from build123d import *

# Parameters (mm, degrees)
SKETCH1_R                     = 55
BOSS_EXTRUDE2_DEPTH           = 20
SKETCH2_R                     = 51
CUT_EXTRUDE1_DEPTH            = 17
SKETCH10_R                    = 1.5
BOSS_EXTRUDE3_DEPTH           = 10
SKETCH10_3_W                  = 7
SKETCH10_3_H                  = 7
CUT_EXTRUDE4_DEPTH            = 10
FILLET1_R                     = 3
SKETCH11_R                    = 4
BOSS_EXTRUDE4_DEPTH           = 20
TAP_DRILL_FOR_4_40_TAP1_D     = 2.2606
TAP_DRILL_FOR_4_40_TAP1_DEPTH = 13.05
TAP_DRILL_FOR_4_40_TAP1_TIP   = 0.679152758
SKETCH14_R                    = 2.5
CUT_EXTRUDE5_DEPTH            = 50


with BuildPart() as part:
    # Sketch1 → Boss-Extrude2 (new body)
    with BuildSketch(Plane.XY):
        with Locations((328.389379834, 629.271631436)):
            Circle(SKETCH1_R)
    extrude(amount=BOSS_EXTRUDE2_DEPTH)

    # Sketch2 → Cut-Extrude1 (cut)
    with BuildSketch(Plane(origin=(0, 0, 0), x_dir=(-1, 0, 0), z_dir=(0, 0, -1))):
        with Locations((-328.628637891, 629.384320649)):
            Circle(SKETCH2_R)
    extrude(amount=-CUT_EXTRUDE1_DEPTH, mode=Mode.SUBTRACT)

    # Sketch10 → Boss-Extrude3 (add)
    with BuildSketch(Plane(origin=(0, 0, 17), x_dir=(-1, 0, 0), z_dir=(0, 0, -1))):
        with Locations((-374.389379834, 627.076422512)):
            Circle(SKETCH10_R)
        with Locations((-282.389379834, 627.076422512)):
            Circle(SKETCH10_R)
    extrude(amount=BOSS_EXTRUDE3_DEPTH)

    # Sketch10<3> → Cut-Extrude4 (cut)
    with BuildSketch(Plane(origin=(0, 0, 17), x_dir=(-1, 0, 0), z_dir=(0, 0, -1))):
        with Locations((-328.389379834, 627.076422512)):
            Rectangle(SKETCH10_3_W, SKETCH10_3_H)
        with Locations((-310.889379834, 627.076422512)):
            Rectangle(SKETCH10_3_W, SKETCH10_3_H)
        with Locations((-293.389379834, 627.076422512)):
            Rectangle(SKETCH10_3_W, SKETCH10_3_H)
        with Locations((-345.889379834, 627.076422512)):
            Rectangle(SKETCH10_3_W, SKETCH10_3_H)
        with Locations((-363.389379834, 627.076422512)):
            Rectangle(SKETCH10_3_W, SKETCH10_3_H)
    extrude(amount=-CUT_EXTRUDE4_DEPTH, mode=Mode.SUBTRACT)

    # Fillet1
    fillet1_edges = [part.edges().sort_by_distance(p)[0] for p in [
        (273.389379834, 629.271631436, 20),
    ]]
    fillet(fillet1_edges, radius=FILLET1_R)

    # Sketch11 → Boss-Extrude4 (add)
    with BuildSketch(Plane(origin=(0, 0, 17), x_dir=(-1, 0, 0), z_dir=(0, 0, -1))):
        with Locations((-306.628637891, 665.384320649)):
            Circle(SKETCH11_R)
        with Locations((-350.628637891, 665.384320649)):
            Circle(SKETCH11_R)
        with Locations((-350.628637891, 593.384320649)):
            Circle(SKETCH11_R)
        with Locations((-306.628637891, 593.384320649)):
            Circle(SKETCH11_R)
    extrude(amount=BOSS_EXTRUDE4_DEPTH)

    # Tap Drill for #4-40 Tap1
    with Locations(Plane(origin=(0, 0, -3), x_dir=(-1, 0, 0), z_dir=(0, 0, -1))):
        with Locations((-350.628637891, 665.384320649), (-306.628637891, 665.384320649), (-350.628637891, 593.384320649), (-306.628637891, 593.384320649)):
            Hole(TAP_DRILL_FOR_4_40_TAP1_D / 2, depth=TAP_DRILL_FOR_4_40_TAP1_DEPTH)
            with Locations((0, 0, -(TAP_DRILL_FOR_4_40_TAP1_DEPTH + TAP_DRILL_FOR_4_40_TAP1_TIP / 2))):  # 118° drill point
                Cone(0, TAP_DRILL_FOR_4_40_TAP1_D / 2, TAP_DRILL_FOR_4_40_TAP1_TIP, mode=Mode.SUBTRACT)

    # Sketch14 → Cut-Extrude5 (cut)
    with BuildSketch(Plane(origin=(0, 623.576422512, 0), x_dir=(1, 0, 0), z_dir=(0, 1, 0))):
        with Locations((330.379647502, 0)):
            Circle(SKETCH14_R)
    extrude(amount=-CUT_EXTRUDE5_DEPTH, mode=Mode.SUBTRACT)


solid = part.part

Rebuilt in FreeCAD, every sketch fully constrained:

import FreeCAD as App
import Part
import Sketcher
from FreeCAD import Vector


def edges_at(feature, points):
    """Names of the edges that pass closest to the given points."""
    edges = feature.Shape.Edges
    near = lambda p: min(range(len(edges)), key=lambda i: edges[i].distToShape(Part.Vertex(*p))[0])
    return sorted({f"Edge{near(p) + 1}" for p in points})


def add_polygon(sketch, points):
    """Adds a closed chain of lines whose ends are joined by coincident constraints."""
    first, n = sketch.GeometryCount, len(points)
    for a, b in zip(points, points[1:] + points[:1]):
        sketch.addGeometry(Part.LineSegment(App.Vector(*a, 0), App.Vector(*b, 0)), False)
    for i in range(n):
        sketch.addConstraint(Sketcher.Constraint("Coincident", first + i, 2, first + (i + 1) % n, 1))

doc = App.newDocument("Part")
params = doc.addObject("Spreadsheet::Sheet", "Params")
for row, (alias, value) in enumerate([
    ("sketch1_diameter", "110 mm"),
    ("pad1_length", "20 mm"),
    ("sketch2_diameter", "102 mm"),
    ("pocket1_length", "17 mm"),
    ("sketch3_diameter", "3 mm"),
    ("pad2_length", "10 mm"),
    ("sketch4_width", "7 mm"),
    ("pocket2_length", "10 mm"),
    ("fillet_radius", "3 mm"),
    ("sketch5_diameter", "8 mm"),
    ("pad3_length", "20 mm"),
    ("hole_diameter", "2.2606 mm"),
    ("hole_depth", "13.05 mm"),
    ("sketch7_diameter", "5 mm"),
    ("pocket3_length", "50 mm"),
], start=1):
    params.set(f"A{row}", alias)
    params.set(f"B{row}", "=" + value)
    params.setAlias(f"B{row}", alias)

body = doc.addObject("PartDesign::Body", "Body")

# Sketch on XY plane
sketch1 = body.newObject("Sketcher::SketchObject", "Sketch")
sketch1.AttachmentSupport = (doc.getObject("XY_Plane"), [""])
sketch1.MapMode = "FlatFace"
sketch1.addGeometry(Part.Circle(Vector(328, 629, 0), Vector(0, 0, 1), 55), False)
sketch1.addConstraint([
    Sketcher.Constraint("Diameter", 0, 110.0),
    Sketcher.Constraint("DistanceX", -1, 1, 0, 3, 328.38938),
    Sketcher.Constraint("DistanceY", -1, 1, 0, 3, 629.271631),
])
sketch1.setExpression("Constraints[0]", "Params.sketch1_diameter")
pad1 = body.newObject("PartDesign::Pad", "Pad")
pad1.Profile = sketch1
pad1.setExpression("Length", "Params.pad1_length")

# Sketch on XY plane
sketch2 = body.newObject("Sketcher::SketchObject", "Sketch001")
sketch2.AttachmentSupport = (doc.getObject("XY_Plane"), [""])
sketch2.MapMode = "FlatFace"
sketch2.addGeometry(Part.Circle(Vector(329, 629, 0), Vector(0, 0, 1), 51), False)
sketch2.addConstraint([
    Sketcher.Constraint("Diameter", 0, 102.0),
    Sketcher.Constraint("DistanceY", -1, 1, 0, 3, 629.384321),
    Sketcher.Constraint("DistanceX", -1, 1, 0, 3, 328.628638),
])
sketch2.setExpression("Constraints[0]", "Params.sketch2_diameter")
pocket1 = body.newObject("PartDesign::Pocket", "Pocket")
pocket1.Profile = sketch2
pocket1.setExpression("Length", "Params.pocket1_length")
pocket1.Reversed = True

# Sketch on XY plane
sketch3 = body.newObject("Sketcher::SketchObject", "Sketch002")
sketch3.AttachmentSupport = (doc.getObject("XY_Plane"), [""])
sketch3.MapMode = "FlatFace"
sketch3.AttachmentOffset = App.Placement(Vector(0, 0, 17), App.Rotation())
sketch3.addGeometry([
    Part.Circle(Vector(374.4, 627.1, 0), Vector(0, 0, 1), 1.5),
    Part.Circle(Vector(282.4, 627.1, 0), Vector(0, 0, 1), 1.5),
], False)
sketch3.addConstraint([
    Sketcher.Constraint("Equal", 0, 1),
    Sketcher.Constraint("Horizontal", 0, 3, 1, 3),
    Sketcher.Constraint("Diameter", 0, 3.0),
    Sketcher.Constraint("DistanceX", 1, 3, 0, 3, 92.0),
    Sketcher.Constraint("DistanceX", -1, 1, 0, 3, 374.38938),
    Sketcher.Constraint("DistanceY", -1, 1, 0, 3, 627.076423),
])
sketch3.setExpression("Constraints[2]", "Params.sketch3_diameter")
pad2 = body.newObject("PartDesign::Pad", "Pad001")
pad2.Profile = sketch3
pad2.setExpression("Length", "Params.pad2_length")
pad2.Reversed = True

# Sketch on XY plane
sketch4 = body.newObject("Sketcher::SketchObject", "Sketch003")
sketch4.AttachmentSupport = (doc.getObject("XY_Plane"), [""])
sketch4.MapMode = "FlatFace"
sketch4.AttachmentOffset = App.Placement(Vector(0, 0, 17), App.Rotation())
add_polygon(sketch4, [(332, 631), (332, 624), (325, 624), (325, 631)])  # lines 0-3
add_polygon(sketch4, [(314, 631), (314, 624), (307, 624), (307, 631)])  # lines 4-7
add_polygon(sketch4, [(297, 631), (297, 624), (290, 624), (290, 631)])  # lines 8-11
add_polygon(sketch4, [(349, 631), (349, 624), (342, 624), (342, 631)])  # lines 12-15
add_polygon(sketch4, [(367, 631), (367, 624), (360, 624), (360, 631)])  # lines 16-19
sketch4.addConstraint([
    Sketcher.Constraint("Vertical", 0),
    Sketcher.Constraint("Horizontal", 1),
    Sketcher.Constraint("Vertical", 2),
    Sketcher.Constraint("Horizontal", 3),
    Sketcher.Constraint("Vertical", 4),
    Sketcher.Constraint("Horizontal", 5),
    Sketcher.Constraint("Vertical", 6),
    Sketcher.Constraint("Horizontal", 7),
    Sketcher.Constraint("Vertical", 8),
    Sketcher.Constraint("Horizontal", 9),
    Sketcher.Constraint("Vertical", 10),
    Sketcher.Constraint("Horizontal", 11),
    Sketcher.Constraint("Vertical", 12),
    Sketcher.Constraint("Horizontal", 13),
    Sketcher.Constraint("Vertical", 14),
    Sketcher.Constraint("Horizontal", 15),
    Sketcher.Constraint("Vertical", 16),
    Sketcher.Constraint("Horizontal", 17),
    Sketcher.Constraint("Vertical", 18),
    Sketcher.Constraint("Horizontal", 19),
    Sketcher.Constraint("Horizontal", 1, 2, 4, 2),
    Sketcher.Constraint("Horizontal", 3, 2, 6, 2),
    Sketcher.Constraint("Horizontal", 5, 2, 8, 2),
    Sketcher.Constraint("Horizontal", 7, 2, 10, 2),
    Sketcher.Constraint("Horizontal", 9, 2, 12, 2),
    Sketcher.Constraint("Horizontal", 11, 2, 14, 2),
    Sketcher.Constraint("Horizontal", 13, 2, 16, 2),
    Sketcher.Constraint("Horizontal", 15, 2, 18, 2),
    Sketcher.Constraint("Equal", 3, 5),
    Sketcher.Constraint("Equal", 7, 9),
    Sketcher.Constraint("Equal", 11, 13),
    Sketcher.Constraint("Equal", 15, 17),
    Sketcher.Constraint("Equal", 19, 0),
    Sketcher.Constraint("DistanceX", 1, 2, 1, 1, 7.0),
    Sketcher.Constraint("DistanceX", 8, 2, 1, 2, 28.0),
    Sketcher.Constraint("DistanceX", 4, 2, 12, 2, 35.0),
    Sketcher.Constraint("DistanceX", 0, 2, 16, 2, 35.0),
    Sketcher.Constraint("DistanceX", 4, 2, 1, 2, 10.5),
    Sketcher.Constraint("DistanceX", -1, 1, 0, 2, 331.88938),
    Sketcher.Constraint("DistanceY", -1, 1, 0, 2, 623.576423),
])
sketch4.setExpression("Constraints[53]", "Params.sketch4_width")
pocket2 = body.newObject("PartDesign::Pocket", "Pocket001")
pocket2.Profile = sketch4
pocket2.setExpression("Length", "Params.pocket2_length")
pocket2.Reversed = True
doc.recompute()

fillet = body.newObject("PartDesign::Fillet", "Fillet")
fillet.Base = (pocket2, edges_at(pocket2, [(273.389, 629.272, 20)]))
fillet.setExpression("Radius", "Params.fillet_radius")

# Sketch on XY plane
sketch5 = body.newObject("Sketcher::SketchObject", "Sketch004")
sketch5.AttachmentSupport = (doc.getObject("XY_Plane"), [""])
sketch5.MapMode = "FlatFace"
sketch5.AttachmentOffset = App.Placement(Vector(0, 0, 17), App.Rotation())
sketch5.addGeometry([
    Part.Circle(Vector(306.6, 665.4, 0), Vector(0, 0, 1), 4),
    Part.Circle(Vector(350.6, 665.4, 0), Vector(0, 0, 1), 4),
    Part.Circle(Vector(350.6, 593.4, 0), Vector(0, 0, 1), 4),
    Part.Circle(Vector(306.6, 593.4, 0), Vector(0, 0, 1), 4),
], False)
sketch5.addConstraint([
    Sketcher.Constraint("Equal", 0, 1),
    Sketcher.Constraint("Equal", 1, 2),
    Sketcher.Constraint("Equal", 2, 3),
    Sketcher.Constraint("Horizontal", 0, 3, 1, 3),
    Sketcher.Constraint("Horizontal", 2, 3, 3, 3),
    Sketcher.Constraint("Vertical", 1, 3, 2, 3),
    Sketcher.Constraint("Vertical", 0, 3, 3, 3),
    Sketcher.Constraint("Diameter", 0, 8.0),
    Sketcher.Constraint("DistanceX", 0, 3, 1, 3, 44.0),
    Sketcher.Constraint("DistanceY", 2, 3, 1, 3, 72.0),
    Sketcher.Constraint("DistanceY", -1, 1, 0, 3, 665.384321),
    Sketcher.Constraint("DistanceX", -1, 1, 0, 3, 306.628638),
])
sketch5.setExpression("Constraints[7]", "Params.sketch5_diameter")
pad3 = body.newObject("PartDesign::Pad", "Pad002")
pad3.Profile = sketch5
pad3.setExpression("Length", "Params.pad3_length")
pad3.Reversed = True

# Sketch on XY plane
sketch6 = body.newObject("Sketcher::SketchObject", "Sketch005")
sketch6.AttachmentSupport = (doc.getObject("XY_Plane"), [""])
sketch6.MapMode = "FlatFace"
sketch6.AttachmentOffset = App.Placement(Vector(0, 0, -3), App.Rotation())
sketch6.addGeometry([
    Part.Circle(Vector(350.6, 665.4, 0), Vector(0, 0, 1), 1.1),
    Part.Circle(Vector(306.6, 665.4, 0), Vector(0, 0, 1), 1.1),
    Part.Circle(Vector(350.6, 593.4, 0), Vector(0, 0, 1), 1.1),
    Part.Circle(Vector(306.6, 593.4, 0), Vector(0, 0, 1), 1.1),
], False)
sketch6.addConstraint([
    Sketcher.Constraint("Equal", 0, 1),
    Sketcher.Constraint("Equal", 1, 2),
    Sketcher.Constraint("Equal", 2, 3),
    Sketcher.Constraint("Horizontal", 0, 3, 1, 3),
    Sketcher.Constraint("Horizontal", 2, 3, 3, 3),
    Sketcher.Constraint("Vertical", 0, 3, 2, 3),
    Sketcher.Constraint("Vertical", 1, 3, 3, 3),
    Sketcher.Constraint("DistanceX", 1, 3, 0, 3, 44.0),
    Sketcher.Constraint("DistanceY", 2, 3, 0, 3, 72.0),
    Sketcher.Constraint("Diameter", 0, 2.2606),
    Sketcher.Constraint("DistanceY", -1, 1, 0, 3, 665.384321),
    Sketcher.Constraint("DistanceX", -1, 1, 0, 3, 350.628638),
])
doc.recompute()
hole = body.newObject("PartDesign::Hole", "Hole")
hole.Profile = sketch6
hole.ThreadType = "None"
hole.setExpression("Diameter", "Params.hole_diameter")
hole.DepthType = "Dimension"
hole.setExpression("Depth", "Params.hole_depth")
hole.DrillPoint = "Angled"
hole.DrillPointAngle = 118
hole.Reversed = True

# Sketch on XZ plane
sketch7 = body.newObject("Sketcher::SketchObject", "Sketch006")
sketch7.AttachmentSupport = (doc.getObject("XZ_Plane"), [""])
sketch7.MapMode = "FlatFace"
sketch7.AttachmentOffset = App.Placement(Vector(0, 0, -623.576423), App.Rotation())
sketch7.addGeometry(Part.Circle(Vector(330.4, 0, 0), Vector(0, 0, 1), 2.5), False)
sketch7.addConstraint([
    Sketcher.Constraint("PointOnObject", 0, 3, -1),
    Sketcher.Constraint("Diameter", 0, 5.0),
    Sketcher.Constraint("DistanceX", -1, 1, 0, 3, 330.379648),
])
sketch7.setExpression("Constraints[1]", "Params.sketch7_diameter")
pocket3 = body.newObject("PartDesign::Pocket", "Pocket002")
pocket3.Profile = sketch7
pocket3.setExpression("Length", "Params.pocket3_length")
pocket3.Reversed = True

doc.recompute()
